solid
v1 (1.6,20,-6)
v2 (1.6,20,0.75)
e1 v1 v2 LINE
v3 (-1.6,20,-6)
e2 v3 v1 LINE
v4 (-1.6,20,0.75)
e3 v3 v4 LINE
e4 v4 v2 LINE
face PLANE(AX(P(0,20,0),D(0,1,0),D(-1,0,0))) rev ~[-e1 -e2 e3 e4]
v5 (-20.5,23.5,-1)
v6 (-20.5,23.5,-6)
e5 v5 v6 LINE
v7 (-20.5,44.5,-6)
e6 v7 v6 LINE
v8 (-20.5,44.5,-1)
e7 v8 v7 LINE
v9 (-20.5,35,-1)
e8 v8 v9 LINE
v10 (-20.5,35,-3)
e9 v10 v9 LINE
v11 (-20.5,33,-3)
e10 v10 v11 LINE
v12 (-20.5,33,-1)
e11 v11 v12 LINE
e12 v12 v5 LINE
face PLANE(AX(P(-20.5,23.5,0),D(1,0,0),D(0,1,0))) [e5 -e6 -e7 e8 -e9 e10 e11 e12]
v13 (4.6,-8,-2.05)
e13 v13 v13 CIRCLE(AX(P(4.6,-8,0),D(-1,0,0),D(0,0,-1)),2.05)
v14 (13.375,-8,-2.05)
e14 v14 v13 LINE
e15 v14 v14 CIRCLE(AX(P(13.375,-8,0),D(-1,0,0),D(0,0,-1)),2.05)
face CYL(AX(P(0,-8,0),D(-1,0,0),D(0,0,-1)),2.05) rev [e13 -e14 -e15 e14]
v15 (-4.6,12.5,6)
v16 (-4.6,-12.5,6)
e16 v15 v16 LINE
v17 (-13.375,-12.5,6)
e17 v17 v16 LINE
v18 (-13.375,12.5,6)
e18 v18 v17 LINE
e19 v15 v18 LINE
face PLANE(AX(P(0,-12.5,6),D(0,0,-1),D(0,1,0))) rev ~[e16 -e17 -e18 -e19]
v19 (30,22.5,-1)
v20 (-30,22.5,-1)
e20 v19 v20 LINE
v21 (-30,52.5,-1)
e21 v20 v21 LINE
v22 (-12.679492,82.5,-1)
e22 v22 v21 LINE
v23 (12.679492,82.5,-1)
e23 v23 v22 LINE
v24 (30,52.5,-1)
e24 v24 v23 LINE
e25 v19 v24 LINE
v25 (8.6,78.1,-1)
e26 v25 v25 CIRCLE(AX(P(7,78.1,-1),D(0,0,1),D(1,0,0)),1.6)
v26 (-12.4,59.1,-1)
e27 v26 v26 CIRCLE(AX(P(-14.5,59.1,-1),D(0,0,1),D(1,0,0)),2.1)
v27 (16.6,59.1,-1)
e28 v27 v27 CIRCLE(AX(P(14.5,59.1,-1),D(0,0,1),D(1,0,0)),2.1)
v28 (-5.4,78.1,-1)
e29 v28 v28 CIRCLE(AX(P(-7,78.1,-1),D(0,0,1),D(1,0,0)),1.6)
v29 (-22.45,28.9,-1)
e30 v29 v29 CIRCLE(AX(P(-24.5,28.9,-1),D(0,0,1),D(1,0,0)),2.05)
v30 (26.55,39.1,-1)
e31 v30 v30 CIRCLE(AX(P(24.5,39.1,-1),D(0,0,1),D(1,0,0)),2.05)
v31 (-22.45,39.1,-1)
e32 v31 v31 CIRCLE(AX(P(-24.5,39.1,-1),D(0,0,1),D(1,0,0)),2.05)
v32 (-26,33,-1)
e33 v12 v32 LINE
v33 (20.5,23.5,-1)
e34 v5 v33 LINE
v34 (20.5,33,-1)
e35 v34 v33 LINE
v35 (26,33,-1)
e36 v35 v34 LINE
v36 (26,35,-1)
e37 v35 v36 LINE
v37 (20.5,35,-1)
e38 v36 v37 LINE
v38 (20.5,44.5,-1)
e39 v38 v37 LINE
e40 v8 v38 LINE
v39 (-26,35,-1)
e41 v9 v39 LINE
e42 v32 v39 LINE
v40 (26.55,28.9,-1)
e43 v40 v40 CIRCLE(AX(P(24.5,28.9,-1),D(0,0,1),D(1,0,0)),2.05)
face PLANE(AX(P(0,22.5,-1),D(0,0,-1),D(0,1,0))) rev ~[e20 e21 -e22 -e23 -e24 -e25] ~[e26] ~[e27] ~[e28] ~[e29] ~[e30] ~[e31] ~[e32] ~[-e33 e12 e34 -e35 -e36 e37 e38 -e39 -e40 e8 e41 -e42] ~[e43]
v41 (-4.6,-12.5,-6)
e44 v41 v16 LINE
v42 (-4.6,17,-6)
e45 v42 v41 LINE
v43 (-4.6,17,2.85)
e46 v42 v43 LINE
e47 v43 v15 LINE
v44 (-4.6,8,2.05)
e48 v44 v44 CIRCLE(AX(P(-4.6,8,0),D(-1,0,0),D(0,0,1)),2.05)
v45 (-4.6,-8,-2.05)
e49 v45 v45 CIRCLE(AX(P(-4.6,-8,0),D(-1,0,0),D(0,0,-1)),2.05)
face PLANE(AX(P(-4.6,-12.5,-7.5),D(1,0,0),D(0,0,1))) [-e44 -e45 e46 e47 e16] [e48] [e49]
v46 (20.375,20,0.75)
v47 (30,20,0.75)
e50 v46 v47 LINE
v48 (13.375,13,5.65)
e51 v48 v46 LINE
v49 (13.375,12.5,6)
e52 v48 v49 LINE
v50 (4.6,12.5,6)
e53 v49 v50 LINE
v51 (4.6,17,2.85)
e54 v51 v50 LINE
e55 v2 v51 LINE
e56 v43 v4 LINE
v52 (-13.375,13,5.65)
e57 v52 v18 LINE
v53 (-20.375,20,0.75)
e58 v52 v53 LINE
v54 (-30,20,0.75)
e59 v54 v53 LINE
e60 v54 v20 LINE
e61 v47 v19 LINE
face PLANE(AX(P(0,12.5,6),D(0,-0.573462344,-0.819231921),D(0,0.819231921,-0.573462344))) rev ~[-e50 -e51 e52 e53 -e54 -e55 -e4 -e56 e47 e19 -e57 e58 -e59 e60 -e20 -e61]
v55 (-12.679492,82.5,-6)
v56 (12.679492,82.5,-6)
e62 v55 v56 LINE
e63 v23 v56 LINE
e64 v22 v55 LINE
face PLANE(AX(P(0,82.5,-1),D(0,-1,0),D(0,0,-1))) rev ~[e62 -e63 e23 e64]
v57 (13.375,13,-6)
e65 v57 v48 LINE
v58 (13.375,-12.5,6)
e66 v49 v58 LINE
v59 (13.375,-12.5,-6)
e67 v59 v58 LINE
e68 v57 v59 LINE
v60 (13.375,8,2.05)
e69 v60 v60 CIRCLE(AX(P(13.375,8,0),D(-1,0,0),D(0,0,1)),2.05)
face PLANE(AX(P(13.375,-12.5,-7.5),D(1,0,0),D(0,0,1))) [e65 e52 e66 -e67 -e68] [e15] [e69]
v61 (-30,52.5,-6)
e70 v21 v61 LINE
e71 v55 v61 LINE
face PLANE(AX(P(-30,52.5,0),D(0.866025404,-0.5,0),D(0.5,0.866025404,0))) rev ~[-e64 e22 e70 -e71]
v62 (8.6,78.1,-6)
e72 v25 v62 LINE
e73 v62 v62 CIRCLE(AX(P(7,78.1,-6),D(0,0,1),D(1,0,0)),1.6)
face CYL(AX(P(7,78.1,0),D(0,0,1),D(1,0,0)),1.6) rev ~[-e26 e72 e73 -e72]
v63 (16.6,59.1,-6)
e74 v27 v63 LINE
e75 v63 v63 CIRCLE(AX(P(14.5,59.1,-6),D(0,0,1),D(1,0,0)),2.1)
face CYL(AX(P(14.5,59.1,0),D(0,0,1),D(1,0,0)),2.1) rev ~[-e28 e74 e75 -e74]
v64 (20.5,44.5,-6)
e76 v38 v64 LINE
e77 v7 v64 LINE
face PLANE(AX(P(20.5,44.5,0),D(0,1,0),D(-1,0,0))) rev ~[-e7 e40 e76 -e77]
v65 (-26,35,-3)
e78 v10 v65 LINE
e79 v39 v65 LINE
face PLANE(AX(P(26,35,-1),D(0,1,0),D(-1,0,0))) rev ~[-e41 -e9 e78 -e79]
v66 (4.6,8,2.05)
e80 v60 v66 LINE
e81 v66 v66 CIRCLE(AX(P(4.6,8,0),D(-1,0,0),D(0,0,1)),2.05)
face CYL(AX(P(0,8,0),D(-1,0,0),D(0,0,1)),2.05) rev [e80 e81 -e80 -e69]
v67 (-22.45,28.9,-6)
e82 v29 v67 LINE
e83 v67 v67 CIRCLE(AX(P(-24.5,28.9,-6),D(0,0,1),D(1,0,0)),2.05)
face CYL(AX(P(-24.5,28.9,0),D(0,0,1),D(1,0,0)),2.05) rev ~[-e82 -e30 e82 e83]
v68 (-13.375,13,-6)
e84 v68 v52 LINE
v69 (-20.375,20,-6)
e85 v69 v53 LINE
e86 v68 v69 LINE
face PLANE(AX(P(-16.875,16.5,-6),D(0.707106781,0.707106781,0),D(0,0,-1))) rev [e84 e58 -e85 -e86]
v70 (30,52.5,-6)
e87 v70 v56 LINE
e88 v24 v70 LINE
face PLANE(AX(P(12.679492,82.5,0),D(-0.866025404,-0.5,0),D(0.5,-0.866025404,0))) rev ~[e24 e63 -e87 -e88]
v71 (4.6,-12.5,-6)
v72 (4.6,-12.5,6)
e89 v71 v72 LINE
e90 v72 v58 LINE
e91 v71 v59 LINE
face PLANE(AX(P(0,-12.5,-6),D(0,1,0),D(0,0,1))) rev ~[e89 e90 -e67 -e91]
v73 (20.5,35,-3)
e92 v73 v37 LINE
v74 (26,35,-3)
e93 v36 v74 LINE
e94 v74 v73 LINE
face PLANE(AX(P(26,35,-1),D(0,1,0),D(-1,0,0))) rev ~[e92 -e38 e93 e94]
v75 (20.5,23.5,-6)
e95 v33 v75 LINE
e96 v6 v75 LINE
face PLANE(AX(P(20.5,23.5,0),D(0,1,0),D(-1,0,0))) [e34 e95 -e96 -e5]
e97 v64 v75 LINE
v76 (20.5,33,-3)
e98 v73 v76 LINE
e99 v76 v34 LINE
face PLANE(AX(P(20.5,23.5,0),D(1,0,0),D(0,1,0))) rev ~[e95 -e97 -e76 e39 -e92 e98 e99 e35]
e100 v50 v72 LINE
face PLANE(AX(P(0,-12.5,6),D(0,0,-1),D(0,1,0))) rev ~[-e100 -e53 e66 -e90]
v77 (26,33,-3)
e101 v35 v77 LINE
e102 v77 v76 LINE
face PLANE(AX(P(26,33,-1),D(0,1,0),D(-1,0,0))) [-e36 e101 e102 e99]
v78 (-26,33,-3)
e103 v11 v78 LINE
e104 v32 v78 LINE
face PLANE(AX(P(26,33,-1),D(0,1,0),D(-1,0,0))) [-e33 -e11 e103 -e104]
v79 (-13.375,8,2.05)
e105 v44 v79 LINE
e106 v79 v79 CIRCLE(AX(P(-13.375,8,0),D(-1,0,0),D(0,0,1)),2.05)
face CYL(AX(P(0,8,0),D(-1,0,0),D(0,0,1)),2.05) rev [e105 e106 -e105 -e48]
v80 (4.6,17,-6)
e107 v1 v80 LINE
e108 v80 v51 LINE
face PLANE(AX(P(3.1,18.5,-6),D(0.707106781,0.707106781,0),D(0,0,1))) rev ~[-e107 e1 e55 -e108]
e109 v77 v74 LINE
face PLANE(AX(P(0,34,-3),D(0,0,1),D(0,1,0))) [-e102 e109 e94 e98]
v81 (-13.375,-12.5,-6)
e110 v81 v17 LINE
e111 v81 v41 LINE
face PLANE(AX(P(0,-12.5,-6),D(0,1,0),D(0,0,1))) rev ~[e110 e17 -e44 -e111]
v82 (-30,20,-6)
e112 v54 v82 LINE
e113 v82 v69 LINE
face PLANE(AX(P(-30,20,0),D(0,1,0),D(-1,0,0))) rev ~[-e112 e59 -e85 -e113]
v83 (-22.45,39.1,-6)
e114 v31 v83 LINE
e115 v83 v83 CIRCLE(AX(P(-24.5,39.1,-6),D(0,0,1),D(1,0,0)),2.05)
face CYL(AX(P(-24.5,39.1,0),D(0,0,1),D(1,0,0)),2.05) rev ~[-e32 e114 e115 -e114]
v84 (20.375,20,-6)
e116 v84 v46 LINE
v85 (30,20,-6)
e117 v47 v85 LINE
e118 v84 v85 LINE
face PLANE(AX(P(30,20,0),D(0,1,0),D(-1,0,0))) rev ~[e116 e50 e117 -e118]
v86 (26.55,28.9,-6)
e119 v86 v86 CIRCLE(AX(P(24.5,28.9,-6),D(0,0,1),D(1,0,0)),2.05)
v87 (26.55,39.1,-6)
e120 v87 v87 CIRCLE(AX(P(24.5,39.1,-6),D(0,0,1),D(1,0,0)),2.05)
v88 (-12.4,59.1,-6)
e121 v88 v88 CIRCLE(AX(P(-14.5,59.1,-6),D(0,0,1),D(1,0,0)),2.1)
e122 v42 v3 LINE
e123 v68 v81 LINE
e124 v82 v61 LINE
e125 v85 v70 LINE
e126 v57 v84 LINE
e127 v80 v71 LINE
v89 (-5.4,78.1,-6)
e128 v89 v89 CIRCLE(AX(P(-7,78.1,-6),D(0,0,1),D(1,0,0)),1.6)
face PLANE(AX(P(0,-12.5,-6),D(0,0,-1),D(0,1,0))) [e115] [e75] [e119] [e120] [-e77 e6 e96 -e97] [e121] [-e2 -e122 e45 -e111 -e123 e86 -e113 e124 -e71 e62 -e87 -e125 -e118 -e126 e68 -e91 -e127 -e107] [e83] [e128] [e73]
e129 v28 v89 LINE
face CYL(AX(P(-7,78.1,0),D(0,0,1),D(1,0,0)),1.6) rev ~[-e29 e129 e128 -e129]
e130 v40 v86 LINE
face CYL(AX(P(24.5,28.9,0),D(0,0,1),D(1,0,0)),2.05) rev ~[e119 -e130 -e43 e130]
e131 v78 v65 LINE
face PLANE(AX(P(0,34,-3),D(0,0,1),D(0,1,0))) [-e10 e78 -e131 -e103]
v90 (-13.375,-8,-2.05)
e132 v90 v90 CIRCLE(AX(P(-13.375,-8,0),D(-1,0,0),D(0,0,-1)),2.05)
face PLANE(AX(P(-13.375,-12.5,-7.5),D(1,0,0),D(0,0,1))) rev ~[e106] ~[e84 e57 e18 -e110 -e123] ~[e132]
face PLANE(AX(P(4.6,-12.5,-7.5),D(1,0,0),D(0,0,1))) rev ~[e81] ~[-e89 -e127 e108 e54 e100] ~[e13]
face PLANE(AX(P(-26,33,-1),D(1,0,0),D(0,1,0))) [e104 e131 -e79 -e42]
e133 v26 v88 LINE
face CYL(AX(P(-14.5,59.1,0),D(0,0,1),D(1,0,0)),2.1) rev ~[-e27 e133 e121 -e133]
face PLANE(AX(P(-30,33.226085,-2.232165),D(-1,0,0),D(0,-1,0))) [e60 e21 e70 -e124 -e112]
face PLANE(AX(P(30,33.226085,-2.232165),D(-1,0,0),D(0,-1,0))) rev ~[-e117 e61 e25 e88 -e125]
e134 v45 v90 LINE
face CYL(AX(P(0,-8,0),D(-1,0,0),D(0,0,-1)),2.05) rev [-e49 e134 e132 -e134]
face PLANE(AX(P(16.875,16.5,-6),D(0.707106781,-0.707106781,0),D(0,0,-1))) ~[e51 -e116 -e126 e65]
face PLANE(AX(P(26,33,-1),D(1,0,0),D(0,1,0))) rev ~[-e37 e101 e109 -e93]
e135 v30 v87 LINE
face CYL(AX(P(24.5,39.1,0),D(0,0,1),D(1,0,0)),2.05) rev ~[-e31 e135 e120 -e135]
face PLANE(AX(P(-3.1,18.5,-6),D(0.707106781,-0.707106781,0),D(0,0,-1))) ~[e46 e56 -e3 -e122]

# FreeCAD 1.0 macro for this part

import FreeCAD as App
import Part
import Sketcher
from FreeCAD import Vector
Q = App.Units.Quantity


def edges_at(feature, points):
    """Names of the edges that pass closest to the given points."""
    edges = feature.Shape.Edges
    near = lambda p: min(range(len(edges)), key=lambda i: edges[i].distToShape(Part.Vertex(*p))[0])
    return sorted({f"Edge{near(p) + 1}" for p in points})


def add_polygon(sketch, points):
    """Adds a closed chain of lines whose ends are joined by coincident constraints."""
    first, n = sketch.GeometryCount, len(points)
    for a, b in zip(points, points[1:] + points[:1]):
        sketch.addGeometry(Part.LineSegment(App.Vector(*a, 0), App.Vector(*b, 0)), False)
    for i in range(n):
        sketch.addConstraint(Sketcher.Constraint("Coincident", first + i, 2, first + (i + 1) % n, 1))

doc = App.newDocument("Part")
body = doc.addObject("PartDesign::Body", "Body")

# Sketch on YZ plane
sketch1 = doc.addObject("Sketcher::SketchObject", "Sketch")
body.addObject(sketch1)
sketch1.AttachmentSupport = (doc.YZ_Plane, [""])
sketch1.MapMode = "FlatFace"
add_polygon(sketch1, [(12.5, 6), (-12.5, 6), (-12.5, -6), (82.5, -6), (82.5, -1), (22.5, -1)])  # lines 0-5
sketch1.addGeometry(Part.Circle(Vector(8, 0, 0), Vector(0, 0, 1), 2), False)  # 6
sketch1.addGeometry(Part.Circle(Vector(-8, 0, 0), Vector(0, 0, 1), 2), False)  # 7
sketch1.addConstraint([
    Sketcher.Constraint("Horizontal", 0),
    Sketcher.Constraint("Vertical", 1),
    Sketcher.Constraint("Horizontal", 2),
    Sketcher.Constraint("Vertical", 3),
    Sketcher.Constraint("Horizontal", 4),
    Sketcher.Constraint("Equal", 6, 7),
    Sketcher.Constraint("Symmetric", 6, 3, 7, 3, -1, 1),
    Sketcher.Constraint("Symmetric", 1, 2, 5, 2, -1, 1),
    Sketcher.Constraint("PointOnObject", 6, 3, -1),
    Sketcher.Constraint("Diameter", 6, 4.1),
    Sketcher.Constraint("DistanceX", 0, 2, 0, 1, 25.0),
    Sketcher.Constraint("DistanceX", 2, 1, 2, 2, 95.0),
    Sketcher.Constraint("DistanceX", 4, 2, 4, 1, 60.0),
    Sketcher.Constraint("DistanceY", 1, 2, 1, 1, 12.0),
    Sketcher.Constraint("DistanceY", 3, 1, 3, 2, 5.0),
    Sketcher.Constraint("DistanceX", -1, 1, 6, 3, 8.0),
])
pad1 = doc.addObject("PartDesign::Pad", "Pad")
body.addObject(pad1)
pad1.Profile = sketch1
pad1.Length = 60
pad1.Midplane = True

# Sketch on XZ plane
sketch2 = doc.addObject("Sketcher::SketchObject", "Sketch001")
body.addObject(sketch2)
sketch2.AttachmentSupport = (doc.XZ_Plane, [""])
sketch2.MapMode = "FlatFace"
sketch2.AttachmentOffset = App.Placement(Vector(0, 0, 12.5), App.Rotation())
add_polygon(sketch2, [(5, 8), (5, -8), (-5, -8), (-5, 8)])  # lines 0-3
add_polygon(sketch2, [(47, 8), (47, -8), (13, -8), (13, 8)])  # lines 4-7
add_polygon(sketch2, [(-13, 8), (-13, -8), (-47, -8), (-47, 8)])  # lines 8-11
sketch2.addConstraint([
    Sketcher.Constraint("Vertical", 0),
    Sketcher.Constraint("Horizontal", 1),
    Sketcher.Constraint("Vertical", 2),
    Sketcher.Constraint("Horizontal", 3),
    Sketcher.Constraint("Vertical", 4),
    Sketcher.Constraint("Horizontal", 5),
    Sketcher.Constraint("Vertical", 6),
    Sketcher.Constraint("Horizontal", 7),
    Sketcher.Constraint("Vertical", 8),
    Sketcher.Constraint("Horizontal", 9),
    Sketcher.Constraint("Vertical", 10),
    Sketcher.Constraint("Horizontal", 11),
    Sketcher.Constraint("Symmetric", 0, 2, 2, 2, -1, 1),
    Sketcher.Constraint("Symmetric", 6, 2, 8, 2, -1, 1),
    Sketcher.Constraint("Symmetric", 4, 2, 10, 2, -1, 1),
    Sketcher.Constraint("Horizontal", 1, 2, 4, 2),
    Sketcher.Constraint("Horizontal", 3, 2, 6, 2),
    Sketcher.Constraint("DistanceY", 0, 2, 0, 1, 15.0),
    Sketcher.Constraint("DistanceX", 1, 2, 1, 1, 9.2),
    Sketcher.Constraint("DistanceX", 5, 2, 5, 1, 33.25),
    Sketcher.Constraint("DistanceX", 8, 2, 5, 2, 26.75),
])
pocket1 = doc.addObject("PartDesign::Pocket", "Pocket")
body.addObject(pocket1)
pocket1.Profile = sketch2
pocket1.Length = 32.5
doc.recompute()

chamfer = doc.addObject("PartDesign::Chamfer", "Chamfer")
body.addObject(chamfer)
chamfer.Base = (pocket1, edges_at(pocket1, [(-4.6, 20, -2.625), (4.6, 20, -2.625)]))
chamfer.Size = 3
doc.recompute()

chamfer2 = doc.addObject("PartDesign::Chamfer", "Chamfer001")
body.addObject(chamfer2)
chamfer2.Base = (chamfer, edges_at(chamfer, [(-13.375, 20, -2.625), (13.375, 20, -2.625)]))
chamfer2.Size = 7

# Sketch on XY plane
sketch3 = doc.addObject("Sketcher::SketchObject", "Sketch002")
body.addObject(sketch3)
sketch3.AttachmentSupport = (doc.XY_Plane, [""])
sketch3.MapMode = "FlatFace"
sketch3.addGeometry(Part.Circle(Vector(-24.5, 39.1, 0), Vector(0, 0, 1), 2), False)  # 0
sketch3.addGeometry(Part.Circle(Vector(-24.5, 28.9, 0), Vector(0, 0, 1), 2), False)  # 1
sketch3.addGeometry(Part.Circle(Vector(24.5, 28.9, 0), Vector(0, 0, 1), 2), False)  # 2
sketch3.addGeometry(Part.Circle(Vector(24.5, 39.1, 0), Vector(0, 0, 1), 2), False)  # 3
add_polygon(sketch3, [(-20.5, 23.5), (20.5, 23.5), (20.5, 44.5), (-20.5, 44.5)])  # lines 4-7
sketch3.addConstraint([
    Sketcher.Constraint("Horizontal", 4),
    Sketcher.Constraint("Vertical", 5),
    Sketcher.Constraint("Horizontal", 6),
    Sketcher.Constraint("Vertical", 7),
    Sketcher.Constraint("Equal", 0, 1),
    Sketcher.Constraint("Equal", 1, 2),
    Sketcher.Constraint("Equal", 2, 3),
    Sketcher.Constraint("Symmetric", 1, 3, 2, 3, -2),
    Sketcher.Constraint("Symmetric", 0, 3, 3, 3, -2),
    Sketcher.Constraint("Vertical", 0, 3, 1, 3),
    Sketcher.Constraint("Diameter", 0, 4.1),
    Sketcher.Constraint("DistanceX", 4, 1, 4, 2, 41.0),
    Sketcher.Constraint("DistanceY", 5, 1, 5, 2, 21.0),
    Sketcher.Constraint("DistanceX", 1, 3, 2, 3, 49.0),
    Sketcher.Constraint("DistanceX", 4, 2, 2, 3, 4.0),
    Sketcher.Constraint("DistanceY", -1, 1, 0, 3, 39.1),
    Sketcher.Constraint("DistanceY", -1, 1, 1, 3, 28.9),
    Sketcher.Constraint("DistanceY", -1, 1, 4, 2, 23.5),
])
pocket2 = doc.addObject("PartDesign::Pocket", "Pocket001")
body.addObject(pocket2)
pocket2.Profile = sketch3
pocket2.Length = 30

# Sketch on XY plane
sketch4 = doc.addObject("Sketcher::SketchObject", "Sketch003")
body.addObject(sketch4)
sketch4.AttachmentSupport = (doc.XY_Plane, [""])
sketch4.MapMode = "FlatFace"
sketch4.addGeometry([
    Part.Circle(Vector(-14.5, 59.1, 0), Vector(0, 0, 1), 2.1),
    Part.Circle(Vector(14.5, 59.1, 0), Vector(0, 0, 1), 2.1),
    Part.Circle(Vector(-7, 78.1, 0), Vector(0, 0, 1), 1.6),
    Part.Circle(Vector(7, 78.1, 0), Vector(0, 0, 1), 1.6),
], False)
sketch4.addConstraint([
    Sketcher.Constraint("Equal", 0, 1),
    Sketcher.Constraint("Equal", 2, 3),
    Sketcher.Constraint("Symmetric", 0, 3, 1, 3, -2),
    Sketcher.Constraint("Symmetric", 2, 3, 3, 3, -2),
    Sketcher.Constraint("Diameter", 0, 4.2),
    Sketcher.Constraint("Diameter", 2, 3.2),
    Sketcher.Constraint("DistanceX", 2, 3, -1, 1, 7.0),
    Sketcher.Constraint("DistanceX", 0, 3, 1, 3, 29.0),
    Sketcher.Constraint("DistanceY", 0, 3, 2, 3, 19.0),
    Sketcher.Constraint("DistanceY", -1, 1, 0, 3, 59.1),
])
pocket3 = doc.addObject("PartDesign::Pocket", "Pocket002")
body.addObject(pocket3)
pocket3.Profile = sketch4
pocket3.Length = 10

# Sketch on XY plane
sketch5 = doc.addObject("Sketcher::SketchObject", "Sketch004")
body.addObject(sketch5)
sketch5.AttachmentSupport = (doc.XY_Plane, [""])
sketch5.MapMode = "FlatFace"
add_polygon(sketch5, [(-30, 52), (-13, 82), (13, 82), (30, 52), (35, 52), (35, 88), (-35, 88), (-35, 52)])  # lines 0-7
sketch5.addConstraint([
    Sketcher.Constraint("Horizontal", 1),
    Sketcher.Constraint("Horizontal", 3),
    Sketcher.Constraint("Vertical", 4),
    Sketcher.Constraint("Horizontal", 5),
    Sketcher.Constraint("Vertical", 6),
    Sketcher.Constraint("Horizontal", 7),
    Sketcher.Constraint("Symmetric", 3, 2, 6, 2, -2),
    Sketcher.Constraint("Equal", 3, 7),
    Sketcher.Constraint("Equal", 0, 2),
    Sketcher.Constraint("DistanceX", 3, 1, 3, 2, 5.0),
    Sketcher.Constraint("DistanceX", 5, 2, 5, 1, 70.0),
    Sketcher.Constraint("DistanceY", 4, 1, 4, 2, 35.0),
    Sketcher.Constraint("Angle", 0, Q("60 deg")),
    Sketcher.Constraint("DistanceY", 2, 2, 1, 2, 30.0),
    Sketcher.Constraint("DistanceY", -1, 1, 0, 2, 82.5),
])
pocket4 = doc.addObject("PartDesign::Pocket", "Pocket003")
body.addObject(pocket4)
pocket4.Profile = sketch5
pocket4.Length = 10

# Sketch on XY plane
sketch6 = doc.addObject("Sketcher::SketchObject", "Sketch005")
body.addObject(sketch6)
sketch6.AttachmentSupport = (doc.XY_Plane, [""])
sketch6.MapMode = "FlatFace"
sketch6.AttachmentOffset = App.Placement(Vector(0, 0, -1), App.Rotation())
add_polygon(sketch6, [(-26, 33), (26, 33), (26, 35), (-26, 35)])  # lines 0-3
sketch6.addConstraint([
    Sketcher.Constraint("Horizontal", 0),
    Sketcher.Constraint("Vertical", 1),
    Sketcher.Constraint("Horizontal", 2),
    Sketcher.Constraint("Vertical", 3),
    Sketcher.Constraint("DistanceX", 0, 1, 0, 2, 52.0),
    Sketcher.Constraint("DistanceY", 1, 1, 1, 2, 2.0),
    Sketcher.Constraint("DistanceX", -1, 1, 0, 2, 26.0),
    Sketcher.Constraint("DistanceY", -1, 1, 0, 2, 33.0),
])
pocket5 = doc.addObject("PartDesign::Pocket", "Pocket004")
body.addObject(pocket5)
pocket5.Profile = sketch6
pocket5.Length = 2

doc.recompute()
